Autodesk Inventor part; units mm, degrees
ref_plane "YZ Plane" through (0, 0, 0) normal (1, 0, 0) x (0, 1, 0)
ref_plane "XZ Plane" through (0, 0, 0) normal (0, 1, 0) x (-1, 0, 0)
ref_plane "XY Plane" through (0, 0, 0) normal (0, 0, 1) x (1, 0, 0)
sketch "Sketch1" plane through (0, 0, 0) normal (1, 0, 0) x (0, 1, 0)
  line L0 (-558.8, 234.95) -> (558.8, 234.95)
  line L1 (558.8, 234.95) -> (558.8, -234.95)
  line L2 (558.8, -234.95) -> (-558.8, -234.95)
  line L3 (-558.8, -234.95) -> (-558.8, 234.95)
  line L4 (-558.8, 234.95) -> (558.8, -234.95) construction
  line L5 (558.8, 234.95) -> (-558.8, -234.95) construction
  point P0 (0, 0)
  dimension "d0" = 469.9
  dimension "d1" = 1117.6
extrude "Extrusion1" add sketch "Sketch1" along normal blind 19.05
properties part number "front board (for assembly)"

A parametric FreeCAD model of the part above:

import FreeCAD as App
import Part
import Sketcher
from FreeCAD import Vector
Q = App.Units.Quantity


def add_polygon(sketch, points):
    """Adds a closed chain of lines whose ends are joined by coincident constraints."""
    first, n = sketch.GeometryCount, len(points)
    for a, b in zip(points, points[1:] + points[:1]):
        sketch.addGeometry(Part.LineSegment(App.Vector(*a, 0), App.Vector(*b, 0)), False)
    for i in range(n):
        sketch.addConstraint(Sketcher.Constraint("Coincident", first + i, 2, first + (i + 1) % n, 1))

doc = App.newDocument("Part")
body = doc.addObject("PartDesign::Body", "Body")

sketch1 = body.newObject("Sketcher::SketchObject", "Sketch")
sketch1.AttachmentSupport = (doc.getObject("YZ_Plane"), [""])
sketch1.MapMode = "FlatFace"
add_polygon(sketch1, [(558.8, 234.95), (-558.8, 234.95), (-558.8, -234.95), (558.8, -234.95)])
sketch1.addConstraint([
    Sketcher.Constraint("Horizontal", 0),
    Sketcher.Constraint("Vertical", 1),
    Sketcher.Constraint("Horizontal", 2),
    Sketcher.Constraint("Vertical", 3),
    Sketcher.Constraint("Symmetric", 0, 2, 2, 2, -1, 1),
    Sketcher.Constraint("DistanceX", 0, 2, 0, 1, Q("44 in")),
    Sketcher.Constraint("DistanceY", 1, 2, 1, 1, Q("18.5 in")),
])
pad1 = body.newObject("PartDesign::Pad", "Pad")
pad1.Profile = sketch1
pad1.Length = Q("0.75 in")

doc.recompute()
